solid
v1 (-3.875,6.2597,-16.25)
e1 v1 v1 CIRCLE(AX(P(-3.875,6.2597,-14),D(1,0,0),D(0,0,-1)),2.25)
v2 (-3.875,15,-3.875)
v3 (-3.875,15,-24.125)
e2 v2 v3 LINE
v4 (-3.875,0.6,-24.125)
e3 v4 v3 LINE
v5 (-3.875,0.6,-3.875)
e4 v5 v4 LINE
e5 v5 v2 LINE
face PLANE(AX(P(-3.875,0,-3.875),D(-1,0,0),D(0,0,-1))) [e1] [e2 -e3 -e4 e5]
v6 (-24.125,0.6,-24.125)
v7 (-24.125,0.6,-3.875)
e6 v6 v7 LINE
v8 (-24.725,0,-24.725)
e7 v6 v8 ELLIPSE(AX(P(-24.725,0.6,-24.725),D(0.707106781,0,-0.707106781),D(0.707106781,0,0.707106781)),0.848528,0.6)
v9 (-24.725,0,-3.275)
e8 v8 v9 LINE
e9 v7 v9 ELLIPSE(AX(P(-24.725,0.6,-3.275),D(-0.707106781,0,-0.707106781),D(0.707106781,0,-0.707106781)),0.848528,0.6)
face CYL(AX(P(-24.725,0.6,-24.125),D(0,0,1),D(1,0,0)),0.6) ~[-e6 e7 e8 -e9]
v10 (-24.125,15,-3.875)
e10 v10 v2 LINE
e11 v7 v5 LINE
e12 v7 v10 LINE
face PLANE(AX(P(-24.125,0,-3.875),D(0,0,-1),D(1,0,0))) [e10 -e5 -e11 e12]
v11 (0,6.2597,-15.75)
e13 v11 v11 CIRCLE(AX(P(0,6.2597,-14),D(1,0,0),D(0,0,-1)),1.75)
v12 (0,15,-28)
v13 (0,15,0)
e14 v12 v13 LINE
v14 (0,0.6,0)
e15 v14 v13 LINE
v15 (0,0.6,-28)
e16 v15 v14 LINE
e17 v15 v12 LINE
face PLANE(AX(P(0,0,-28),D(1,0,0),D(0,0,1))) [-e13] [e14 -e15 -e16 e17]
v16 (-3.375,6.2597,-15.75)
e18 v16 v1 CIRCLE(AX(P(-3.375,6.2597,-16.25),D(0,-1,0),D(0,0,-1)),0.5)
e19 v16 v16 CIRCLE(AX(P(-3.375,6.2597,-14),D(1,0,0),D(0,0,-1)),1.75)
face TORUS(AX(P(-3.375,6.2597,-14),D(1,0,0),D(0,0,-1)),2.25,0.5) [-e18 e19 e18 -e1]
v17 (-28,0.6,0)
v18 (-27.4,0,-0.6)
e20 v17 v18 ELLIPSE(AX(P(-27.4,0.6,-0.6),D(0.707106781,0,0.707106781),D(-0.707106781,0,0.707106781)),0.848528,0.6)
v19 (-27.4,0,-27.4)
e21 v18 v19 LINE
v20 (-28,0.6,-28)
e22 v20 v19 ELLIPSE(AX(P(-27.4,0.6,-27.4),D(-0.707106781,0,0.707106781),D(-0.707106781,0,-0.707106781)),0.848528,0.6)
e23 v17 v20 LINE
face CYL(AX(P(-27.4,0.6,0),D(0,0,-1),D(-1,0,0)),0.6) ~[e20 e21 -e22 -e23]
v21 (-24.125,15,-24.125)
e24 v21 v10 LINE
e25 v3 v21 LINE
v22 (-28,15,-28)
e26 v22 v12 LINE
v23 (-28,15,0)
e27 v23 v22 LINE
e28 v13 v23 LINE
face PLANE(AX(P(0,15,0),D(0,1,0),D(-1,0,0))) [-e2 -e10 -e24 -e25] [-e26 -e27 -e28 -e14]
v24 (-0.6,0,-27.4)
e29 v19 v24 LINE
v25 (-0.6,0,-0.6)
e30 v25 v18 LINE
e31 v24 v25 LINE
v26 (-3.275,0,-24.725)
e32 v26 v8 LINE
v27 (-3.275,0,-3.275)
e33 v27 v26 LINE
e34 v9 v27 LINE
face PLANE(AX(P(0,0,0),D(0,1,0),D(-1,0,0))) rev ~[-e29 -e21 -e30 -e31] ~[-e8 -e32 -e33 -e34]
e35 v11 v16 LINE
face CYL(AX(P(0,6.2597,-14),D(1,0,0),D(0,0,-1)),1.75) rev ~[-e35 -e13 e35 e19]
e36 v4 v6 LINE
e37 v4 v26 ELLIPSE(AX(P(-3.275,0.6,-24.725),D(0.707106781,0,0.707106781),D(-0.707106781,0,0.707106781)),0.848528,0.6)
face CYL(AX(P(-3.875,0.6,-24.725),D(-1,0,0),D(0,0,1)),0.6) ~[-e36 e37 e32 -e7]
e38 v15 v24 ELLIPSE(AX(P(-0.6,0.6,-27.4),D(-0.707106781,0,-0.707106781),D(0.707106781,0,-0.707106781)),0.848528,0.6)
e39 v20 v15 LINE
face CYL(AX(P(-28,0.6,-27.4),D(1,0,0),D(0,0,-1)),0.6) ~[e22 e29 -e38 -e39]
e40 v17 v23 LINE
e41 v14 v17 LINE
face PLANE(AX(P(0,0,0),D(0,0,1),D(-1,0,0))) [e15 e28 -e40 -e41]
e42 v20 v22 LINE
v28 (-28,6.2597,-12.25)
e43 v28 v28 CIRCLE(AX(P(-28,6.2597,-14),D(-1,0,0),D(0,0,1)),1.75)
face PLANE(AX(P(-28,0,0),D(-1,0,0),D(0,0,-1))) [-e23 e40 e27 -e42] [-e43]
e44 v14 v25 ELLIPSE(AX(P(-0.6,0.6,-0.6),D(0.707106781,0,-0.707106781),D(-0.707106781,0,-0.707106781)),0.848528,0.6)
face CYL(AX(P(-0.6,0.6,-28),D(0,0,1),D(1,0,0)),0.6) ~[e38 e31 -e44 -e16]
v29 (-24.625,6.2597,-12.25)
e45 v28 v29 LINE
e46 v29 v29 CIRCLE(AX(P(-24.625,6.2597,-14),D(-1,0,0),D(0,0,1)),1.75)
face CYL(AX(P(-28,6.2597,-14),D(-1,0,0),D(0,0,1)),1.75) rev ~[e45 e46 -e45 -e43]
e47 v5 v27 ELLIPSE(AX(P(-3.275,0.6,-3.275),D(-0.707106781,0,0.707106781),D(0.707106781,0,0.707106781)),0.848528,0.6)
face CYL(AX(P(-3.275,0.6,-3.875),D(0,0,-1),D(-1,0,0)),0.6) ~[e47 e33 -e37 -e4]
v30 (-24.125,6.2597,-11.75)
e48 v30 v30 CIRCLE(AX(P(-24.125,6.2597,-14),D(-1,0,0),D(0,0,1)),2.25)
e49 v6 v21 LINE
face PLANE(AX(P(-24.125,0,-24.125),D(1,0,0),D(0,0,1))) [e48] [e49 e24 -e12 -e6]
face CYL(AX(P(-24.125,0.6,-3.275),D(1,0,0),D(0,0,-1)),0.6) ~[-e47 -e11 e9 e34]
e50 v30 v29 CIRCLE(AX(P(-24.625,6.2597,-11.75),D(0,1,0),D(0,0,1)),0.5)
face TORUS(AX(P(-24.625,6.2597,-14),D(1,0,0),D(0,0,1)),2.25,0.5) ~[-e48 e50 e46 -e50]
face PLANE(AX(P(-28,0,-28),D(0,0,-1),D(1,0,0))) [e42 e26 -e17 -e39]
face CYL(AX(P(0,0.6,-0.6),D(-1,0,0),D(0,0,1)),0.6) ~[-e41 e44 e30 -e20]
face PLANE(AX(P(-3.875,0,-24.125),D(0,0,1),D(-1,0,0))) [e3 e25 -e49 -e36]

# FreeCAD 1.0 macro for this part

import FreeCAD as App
import Part
import Sketcher


def edges_at(feature, points):
    """Names of the edges that pass closest to the given points."""
    edges = feature.Shape.Edges
    near = lambda p: min(range(len(edges)), key=lambda i: edges[i].distToShape(Part.Vertex(*p))[0])
    return sorted({f"Edge{near(p) + 1}" for p in points})


def add_polygon(sketch, points):
    """Adds a closed chain of lines whose ends are joined by coincident constraints."""
    first, n = sketch.GeometryCount, len(points)
    for a, b in zip(points, points[1:] + points[:1]):
        sketch.addGeometry(Part.LineSegment(App.Vector(*a, 0), App.Vector(*b, 0)), False)
    for i in range(n):
        sketch.addConstraint(Sketcher.Constraint("Coincident", first + i, 2, first + (i + 1) % n, 1))

doc = App.newDocument("Part")
params = doc.addObject("Spreadsheet::Sheet", "Params")
for row, (alias, value) in enumerate([
    ("sketch1_width", "28 mm"),
    ("sketch1_width2", "20.25 mm"),
    ("pad1_length", "15 mm"),
    ("fillet_radius", "0.6 mm"),
    ("sketch2_diameter", "3.5 mm"),
    ("pocket1_length", "10 mm"),
    ("sketch3_diameter", "3.5 mm"),
    ("pocket2_length", "10 mm"),
    ("fillet2_radius", "0.5 mm"),
], start=1):
    params.set(f"A{row}", alias)
    params.set(f"B{row}", "=" + value)
    params.setAlias(f"B{row}", alias)

body = doc.addObject("PartDesign::Body", "Body")

# Sketch on XZ plane
sketch1 = body.newObject("Sketcher::SketchObject", "Sketch")
sketch1.AttachmentSupport = (doc.getObject("XZ_Plane"), [""])
sketch1.MapMode = "FlatFace"
add_polygon(sketch1, [(-28, 0), (0, 0), (0, -28), (-28, -28)])  # lines 0-3
add_polygon(sketch1, [(-4, -4), (-24, -4), (-24, -24), (-4, -24)])  # lines 4-7
sketch1.addConstraint([
    Sketcher.Constraint("Horizontal", 0),
    Sketcher.Constraint("Vertical", 1),
    Sketcher.Constraint("Horizontal", 2),
    Sketcher.Constraint("Vertical", 3),
    Sketcher.Constraint("Horizontal", 4),
    Sketcher.Constraint("Vertical", 5),
    Sketcher.Constraint("Horizontal", 6),
    Sketcher.Constraint("Vertical", 7),
    Sketcher.Constraint("Coincident", 0, 2, -1, 1),
    Sketcher.Constraint("Equal", 2, 1),
    Sketcher.Constraint("Equal", 6, 5),
    Sketcher.Constraint("DistanceX", 0, 1, 0, 2, 28.0),
    Sketcher.Constraint("DistanceX", 4, 2, 4, 1, 20.25),
    Sketcher.Constraint("DistanceX", 4, 2, -1, 1, 24.125),
    Sketcher.Constraint("DistanceY", 4, 2, -1, 1, 3.875),
])
sketch1.setExpression("Constraints[19]", "Params.sketch1_width")
sketch1.setExpression("Constraints[20]", "Params.sketch1_width2")
pad1 = body.newObject("PartDesign::Pad", "Pad")
pad1.Profile = sketch1
pad1.setExpression("Length", "Params.pad1_length")
pad1.Reversed = True
doc.recompute()

fillet = body.newObject("PartDesign::Fillet", "Fillet")
fillet.Base = (pad1, edges_at(pad1, [
    (-14, 0, -3.875),
    (-24.125, 0, -14),
    (-14, 0, -24.125),
    (-3.875, 0, -14),
    (-14, 0, 0),
    (-28, 0, -14),
    (-14, 0, -28),
    (0, 0, -14),
]))
fillet.setExpression("Radius", "Params.fillet_radius")

# Sketch on YZ plane
sketch2 = body.newObject("Sketcher::SketchObject", "Sketch001")
sketch2.AttachmentSupport = (doc.getObject("YZ_Plane"), [""])
sketch2.MapMode = "FlatFace"
sketch2.AttachmentOffset = App.Placement(App.Vector(0, 0, -28), App.Rotation())
sketch2.addGeometry(Part.Circle(App.Vector(6.3, -14, 0), App.Vector(0, 0, 1), 1.8), False)
sketch2.addConstraint([
    Sketcher.Constraint("Diameter", 0, 3.5),
    Sketcher.Constraint("DistanceY", 0, 3, -1, 1, 14.0),
    Sketcher.Constraint("DistanceX", -1, 1, 0, 3, 6.2597),
])
sketch2.setExpression("Constraints[0]", "Params.sketch2_diameter")
pocket1 = body.newObject("PartDesign::Pocket", "Pocket")
pocket1.Profile = sketch2
pocket1.setExpression("Length", "Params.pocket1_length")
pocket1.Reversed = True

# Sketch on YZ plane
sketch3 = body.newObject("Sketcher::SketchObject", "Sketch002")
sketch3.AttachmentSupport = (doc.getObject("YZ_Plane"), [""])
sketch3.MapMode = "FlatFace"
sketch3.addGeometry(Part.Circle(App.Vector(6.3, -14, 0), App.Vector(0, 0, 1), 1.8), False)
sketch3.addConstraint([
    Sketcher.Constraint("Diameter", 0, 3.5),
    Sketcher.Constraint("DistanceY", 0, 3, -1, 1, 14.0),
    Sketcher.Constraint("DistanceX", -1, 1, 0, 3, 6.2597),
])
sketch3.setExpression("Constraints[0]", "Params.sketch3_diameter")
pocket2 = body.newObject("PartDesign::Pocket", "Pocket001")
pocket2.Profile = sketch3
pocket2.setExpression("Length", "Params.pocket2_length")
doc.recompute()

fillet2 = body.newObject("PartDesign::Fillet", "Fillet001")
fillet2.Base = (pocket2, edges_at(pocket2, [(-3.875, 6.26, -12.25), (-24.125, 6.26, -15.75)]))
fillet2.setExpression("Radius", "Params.fillet2_radius")

doc.recompute()
